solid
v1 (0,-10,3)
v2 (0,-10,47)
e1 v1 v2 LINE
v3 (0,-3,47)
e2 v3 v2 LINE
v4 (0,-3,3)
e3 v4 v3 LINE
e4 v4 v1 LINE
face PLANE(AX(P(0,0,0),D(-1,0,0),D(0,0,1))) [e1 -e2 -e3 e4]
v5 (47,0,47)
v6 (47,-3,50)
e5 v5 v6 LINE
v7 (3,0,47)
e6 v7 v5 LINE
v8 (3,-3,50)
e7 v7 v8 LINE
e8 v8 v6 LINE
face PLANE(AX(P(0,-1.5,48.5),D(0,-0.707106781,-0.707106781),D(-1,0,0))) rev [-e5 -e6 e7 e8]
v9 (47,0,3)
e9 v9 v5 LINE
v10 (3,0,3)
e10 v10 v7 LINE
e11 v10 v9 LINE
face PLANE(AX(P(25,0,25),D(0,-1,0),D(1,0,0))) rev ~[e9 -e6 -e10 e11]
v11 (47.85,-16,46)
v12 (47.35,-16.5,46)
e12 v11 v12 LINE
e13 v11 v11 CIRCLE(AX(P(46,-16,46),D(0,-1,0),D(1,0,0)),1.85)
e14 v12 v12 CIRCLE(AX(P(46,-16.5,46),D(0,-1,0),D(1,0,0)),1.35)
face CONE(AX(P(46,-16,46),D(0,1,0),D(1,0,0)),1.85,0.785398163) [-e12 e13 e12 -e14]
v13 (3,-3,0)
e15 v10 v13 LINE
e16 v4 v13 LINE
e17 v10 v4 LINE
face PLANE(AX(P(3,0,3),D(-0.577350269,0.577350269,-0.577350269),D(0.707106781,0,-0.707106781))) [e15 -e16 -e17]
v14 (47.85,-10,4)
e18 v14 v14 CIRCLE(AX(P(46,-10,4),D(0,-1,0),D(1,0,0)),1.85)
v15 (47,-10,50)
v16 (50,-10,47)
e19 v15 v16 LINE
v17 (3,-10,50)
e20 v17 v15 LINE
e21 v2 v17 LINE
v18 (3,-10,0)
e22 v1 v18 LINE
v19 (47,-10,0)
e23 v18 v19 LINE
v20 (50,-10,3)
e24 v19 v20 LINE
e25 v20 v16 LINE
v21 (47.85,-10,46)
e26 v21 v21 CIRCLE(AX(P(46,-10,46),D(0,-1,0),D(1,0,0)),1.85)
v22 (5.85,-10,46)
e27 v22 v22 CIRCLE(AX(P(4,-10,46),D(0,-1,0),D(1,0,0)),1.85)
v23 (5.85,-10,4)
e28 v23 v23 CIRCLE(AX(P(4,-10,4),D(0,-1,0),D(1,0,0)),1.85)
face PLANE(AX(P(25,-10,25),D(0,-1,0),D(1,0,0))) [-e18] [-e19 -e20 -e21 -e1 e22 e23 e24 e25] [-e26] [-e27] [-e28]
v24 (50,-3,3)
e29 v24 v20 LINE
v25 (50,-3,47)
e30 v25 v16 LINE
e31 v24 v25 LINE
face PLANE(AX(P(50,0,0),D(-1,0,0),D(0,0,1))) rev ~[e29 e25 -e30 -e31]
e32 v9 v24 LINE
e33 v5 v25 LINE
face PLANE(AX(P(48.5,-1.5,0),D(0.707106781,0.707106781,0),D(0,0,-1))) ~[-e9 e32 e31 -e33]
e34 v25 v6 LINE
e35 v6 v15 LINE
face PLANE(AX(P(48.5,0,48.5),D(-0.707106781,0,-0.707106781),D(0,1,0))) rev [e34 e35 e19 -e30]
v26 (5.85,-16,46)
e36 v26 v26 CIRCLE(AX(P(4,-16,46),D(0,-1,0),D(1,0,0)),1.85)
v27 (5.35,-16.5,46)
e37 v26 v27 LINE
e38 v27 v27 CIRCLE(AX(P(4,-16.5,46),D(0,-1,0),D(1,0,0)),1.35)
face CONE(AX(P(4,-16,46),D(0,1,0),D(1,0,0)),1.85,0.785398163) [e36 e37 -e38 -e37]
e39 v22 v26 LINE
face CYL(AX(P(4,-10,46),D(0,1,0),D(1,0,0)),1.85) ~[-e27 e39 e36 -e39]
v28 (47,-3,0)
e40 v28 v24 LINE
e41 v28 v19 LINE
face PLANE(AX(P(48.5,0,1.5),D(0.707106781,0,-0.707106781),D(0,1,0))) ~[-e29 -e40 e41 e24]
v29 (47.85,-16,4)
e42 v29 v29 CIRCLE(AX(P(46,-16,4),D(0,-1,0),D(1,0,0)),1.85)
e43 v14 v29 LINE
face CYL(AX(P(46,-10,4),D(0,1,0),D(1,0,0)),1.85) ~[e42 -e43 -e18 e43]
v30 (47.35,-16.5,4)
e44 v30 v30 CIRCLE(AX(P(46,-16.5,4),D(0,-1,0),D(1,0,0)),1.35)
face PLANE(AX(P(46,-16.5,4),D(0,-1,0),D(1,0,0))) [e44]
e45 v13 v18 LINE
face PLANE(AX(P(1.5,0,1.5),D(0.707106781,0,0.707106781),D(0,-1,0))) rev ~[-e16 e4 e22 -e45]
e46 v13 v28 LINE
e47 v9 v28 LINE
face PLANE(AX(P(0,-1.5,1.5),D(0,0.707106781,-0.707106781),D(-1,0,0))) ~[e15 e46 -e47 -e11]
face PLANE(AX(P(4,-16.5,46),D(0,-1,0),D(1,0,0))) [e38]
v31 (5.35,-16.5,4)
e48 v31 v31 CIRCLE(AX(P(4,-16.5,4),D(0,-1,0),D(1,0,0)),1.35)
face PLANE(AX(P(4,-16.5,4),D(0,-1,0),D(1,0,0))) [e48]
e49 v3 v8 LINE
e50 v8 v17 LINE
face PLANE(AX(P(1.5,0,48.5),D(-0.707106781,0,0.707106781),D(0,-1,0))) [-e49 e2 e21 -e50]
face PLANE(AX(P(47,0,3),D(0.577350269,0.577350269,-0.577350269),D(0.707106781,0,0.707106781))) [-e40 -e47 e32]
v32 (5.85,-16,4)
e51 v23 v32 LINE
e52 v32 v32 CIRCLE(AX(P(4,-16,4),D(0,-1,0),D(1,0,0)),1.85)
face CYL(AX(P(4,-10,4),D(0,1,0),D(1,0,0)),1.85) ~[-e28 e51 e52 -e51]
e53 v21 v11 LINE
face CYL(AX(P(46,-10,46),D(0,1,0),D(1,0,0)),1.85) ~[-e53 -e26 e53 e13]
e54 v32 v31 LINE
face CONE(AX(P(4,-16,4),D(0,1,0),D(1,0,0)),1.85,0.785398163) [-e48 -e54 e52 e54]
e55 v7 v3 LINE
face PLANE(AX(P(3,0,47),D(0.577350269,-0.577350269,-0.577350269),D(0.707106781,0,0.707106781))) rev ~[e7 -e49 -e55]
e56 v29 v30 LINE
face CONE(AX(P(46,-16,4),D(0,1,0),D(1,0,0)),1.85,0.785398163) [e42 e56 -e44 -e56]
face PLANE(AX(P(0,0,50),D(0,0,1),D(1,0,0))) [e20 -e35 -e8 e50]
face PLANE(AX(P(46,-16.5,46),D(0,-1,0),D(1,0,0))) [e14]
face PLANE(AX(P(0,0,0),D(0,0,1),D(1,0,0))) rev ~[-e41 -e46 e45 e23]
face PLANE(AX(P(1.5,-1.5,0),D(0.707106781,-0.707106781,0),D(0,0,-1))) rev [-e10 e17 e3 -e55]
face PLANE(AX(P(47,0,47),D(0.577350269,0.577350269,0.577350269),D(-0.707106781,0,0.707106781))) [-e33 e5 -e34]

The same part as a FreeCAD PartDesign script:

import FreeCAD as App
import Part
import Sketcher
Q = App.Units.Quantity


def edges_at(feature, points):
    """Names of the edges that pass closest to the given points."""
    edges = feature.Shape.Edges
    near = lambda p: min(range(len(edges)), key=lambda i: edges[i].distToShape(Part.Vertex(*p))[0])
    return sorted({f"Edge{near(p) + 1}" for p in points})


def add_polygon(sketch, points):
    """Adds a closed chain of lines whose ends are joined by coincident constraints."""
    first, n = sketch.GeometryCount, len(points)
    for a, b in zip(points, points[1:] + points[:1]):
        sketch.addGeometry(Part.LineSegment(App.Vector(*a, 0), App.Vector(*b, 0)), False)
    for i in range(n):
        sketch.addConstraint(Sketcher.Constraint("Coincident", first + i, 2, first + (i + 1) % n, 1))

doc = App.newDocument("Part")
body = doc.addObject("PartDesign::Body", "Body")

sketch1 = body.newObject("Sketcher::SketchObject", "Sketch")
sketch1.AttachmentSupport = (doc.getObject("XZ_Plane"), [""])
sketch1.MapMode = "FlatFace"
add_polygon(sketch1, [(0, 50), (0, 0), (50, 0), (50, 50)])
sketch1.addConstraint(Sketcher.Constraint("Vertical", 0))
sketch1.addConstraint(Sketcher.Constraint("Horizontal", 1))
sketch1.addConstraint(Sketcher.Constraint("Vertical", 2))
sketch1.addConstraint(Sketcher.Constraint("Horizontal", 3))
sketch1.addConstraint(Sketcher.Constraint("Coincident", 0, 2, -1, 1))
sketch1.addConstraint(Sketcher.Constraint("Equal", 3, 0))
sketch1.addConstraint(Sketcher.Constraint("DistanceX", 1, 1, 1, 2, Q("50 mm")))
pad1 = body.newObject("PartDesign::Pad", "Pad")
pad1.Profile = sketch1
pad1.Length = 10

sketch2 = body.newObject("Sketcher::SketchObject", "Sketch001")
sketch2.AttachmentSupport = (doc.getObject("XZ_Plane"), [""])
sketch2.MapMode = "FlatFace"
sketch2.AttachmentOffset = App.Placement(App.Vector(0, 0, 10), App.Rotation())
sketch2.addGeometry(Part.Circle(App.Vector(4, 46, 0), App.Vector(0, 0, 1), 1.9), False)
sketch2.addGeometry(Part.Circle(App.Vector(46, 46, 0), App.Vector(0, 0, 1), 1.9), False)
sketch2.addGeometry(Part.Circle(App.Vector(46, 4, 0), App.Vector(0, 0, 1), 1.9), False)
sketch2.addGeometry(Part.Circle(App.Vector(4, 4, 0), App.Vector(0, 0, 1), 1.9), False)
sketch2.addConstraint(Sketcher.Constraint("Equal", 0, 1))
sketch2.addConstraint(Sketcher.Constraint("Equal", 1, 2))
sketch2.addConstraint(Sketcher.Constraint("Equal", 2, 3))
sketch2.addConstraint(Sketcher.Constraint("Horizontal", 0, 3, 1, 3))
sketch2.addConstraint(Sketcher.Constraint("Horizontal", 2, 3, 3, 3))
sketch2.addConstraint(Sketcher.Constraint("Vertical", 1, 3, 2, 3))
sketch2.addConstraint(Sketcher.Constraint("Vertical", 0, 3, 3, 3))
sketch2.addConstraint(Sketcher.Constraint("Diameter", 0, Q("3.7 mm")))
sketch2.addConstraint(Sketcher.Constraint("DistanceX", -1, 1, 0, 3, Q("4 mm")))
sketch2.addConstraint(Sketcher.Constraint("DistanceY", -1, 1, 0, 3, Q("46 mm")))
sketch2.addConstraint(Sketcher.Constraint("DistanceX", -1, 1, 1, 3, Q("46 mm")))
sketch2.addConstraint(Sketcher.Constraint("DistanceY", -1, 1, 2, 3, Q("4 mm")))
pad2 = body.newObject("PartDesign::Pad", "Pad001")
pad2.Profile = sketch2
pad2.Length = 6.5
doc.recompute()

chamfer = body.newObject("PartDesign::Chamfer", "Chamfer")
chamfer.Base = (pad2, edges_at(pad2, [
    (2.15, -16.5, 4),
    (44.15, -16.5, 4),
    (44.15, -16.5, 46),
    (2.15, -16.5, 46),
]))
chamfer.Size = 0.5
doc.recompute()

chamfer2 = body.newObject("PartDesign::Chamfer", "Chamfer001")
chamfer2.Base = (chamfer, edges_at(chamfer, [
    (0, -5, 50),
    (50, -5, 50),
    (50, -5, 0),
    (0, -5, 0),
    (0, 0, 25),
    (25, 0, 0),
    (50, 0, 25),
    (25, 0, 50),
]))
chamfer2.Size = 3

doc.recompute()
